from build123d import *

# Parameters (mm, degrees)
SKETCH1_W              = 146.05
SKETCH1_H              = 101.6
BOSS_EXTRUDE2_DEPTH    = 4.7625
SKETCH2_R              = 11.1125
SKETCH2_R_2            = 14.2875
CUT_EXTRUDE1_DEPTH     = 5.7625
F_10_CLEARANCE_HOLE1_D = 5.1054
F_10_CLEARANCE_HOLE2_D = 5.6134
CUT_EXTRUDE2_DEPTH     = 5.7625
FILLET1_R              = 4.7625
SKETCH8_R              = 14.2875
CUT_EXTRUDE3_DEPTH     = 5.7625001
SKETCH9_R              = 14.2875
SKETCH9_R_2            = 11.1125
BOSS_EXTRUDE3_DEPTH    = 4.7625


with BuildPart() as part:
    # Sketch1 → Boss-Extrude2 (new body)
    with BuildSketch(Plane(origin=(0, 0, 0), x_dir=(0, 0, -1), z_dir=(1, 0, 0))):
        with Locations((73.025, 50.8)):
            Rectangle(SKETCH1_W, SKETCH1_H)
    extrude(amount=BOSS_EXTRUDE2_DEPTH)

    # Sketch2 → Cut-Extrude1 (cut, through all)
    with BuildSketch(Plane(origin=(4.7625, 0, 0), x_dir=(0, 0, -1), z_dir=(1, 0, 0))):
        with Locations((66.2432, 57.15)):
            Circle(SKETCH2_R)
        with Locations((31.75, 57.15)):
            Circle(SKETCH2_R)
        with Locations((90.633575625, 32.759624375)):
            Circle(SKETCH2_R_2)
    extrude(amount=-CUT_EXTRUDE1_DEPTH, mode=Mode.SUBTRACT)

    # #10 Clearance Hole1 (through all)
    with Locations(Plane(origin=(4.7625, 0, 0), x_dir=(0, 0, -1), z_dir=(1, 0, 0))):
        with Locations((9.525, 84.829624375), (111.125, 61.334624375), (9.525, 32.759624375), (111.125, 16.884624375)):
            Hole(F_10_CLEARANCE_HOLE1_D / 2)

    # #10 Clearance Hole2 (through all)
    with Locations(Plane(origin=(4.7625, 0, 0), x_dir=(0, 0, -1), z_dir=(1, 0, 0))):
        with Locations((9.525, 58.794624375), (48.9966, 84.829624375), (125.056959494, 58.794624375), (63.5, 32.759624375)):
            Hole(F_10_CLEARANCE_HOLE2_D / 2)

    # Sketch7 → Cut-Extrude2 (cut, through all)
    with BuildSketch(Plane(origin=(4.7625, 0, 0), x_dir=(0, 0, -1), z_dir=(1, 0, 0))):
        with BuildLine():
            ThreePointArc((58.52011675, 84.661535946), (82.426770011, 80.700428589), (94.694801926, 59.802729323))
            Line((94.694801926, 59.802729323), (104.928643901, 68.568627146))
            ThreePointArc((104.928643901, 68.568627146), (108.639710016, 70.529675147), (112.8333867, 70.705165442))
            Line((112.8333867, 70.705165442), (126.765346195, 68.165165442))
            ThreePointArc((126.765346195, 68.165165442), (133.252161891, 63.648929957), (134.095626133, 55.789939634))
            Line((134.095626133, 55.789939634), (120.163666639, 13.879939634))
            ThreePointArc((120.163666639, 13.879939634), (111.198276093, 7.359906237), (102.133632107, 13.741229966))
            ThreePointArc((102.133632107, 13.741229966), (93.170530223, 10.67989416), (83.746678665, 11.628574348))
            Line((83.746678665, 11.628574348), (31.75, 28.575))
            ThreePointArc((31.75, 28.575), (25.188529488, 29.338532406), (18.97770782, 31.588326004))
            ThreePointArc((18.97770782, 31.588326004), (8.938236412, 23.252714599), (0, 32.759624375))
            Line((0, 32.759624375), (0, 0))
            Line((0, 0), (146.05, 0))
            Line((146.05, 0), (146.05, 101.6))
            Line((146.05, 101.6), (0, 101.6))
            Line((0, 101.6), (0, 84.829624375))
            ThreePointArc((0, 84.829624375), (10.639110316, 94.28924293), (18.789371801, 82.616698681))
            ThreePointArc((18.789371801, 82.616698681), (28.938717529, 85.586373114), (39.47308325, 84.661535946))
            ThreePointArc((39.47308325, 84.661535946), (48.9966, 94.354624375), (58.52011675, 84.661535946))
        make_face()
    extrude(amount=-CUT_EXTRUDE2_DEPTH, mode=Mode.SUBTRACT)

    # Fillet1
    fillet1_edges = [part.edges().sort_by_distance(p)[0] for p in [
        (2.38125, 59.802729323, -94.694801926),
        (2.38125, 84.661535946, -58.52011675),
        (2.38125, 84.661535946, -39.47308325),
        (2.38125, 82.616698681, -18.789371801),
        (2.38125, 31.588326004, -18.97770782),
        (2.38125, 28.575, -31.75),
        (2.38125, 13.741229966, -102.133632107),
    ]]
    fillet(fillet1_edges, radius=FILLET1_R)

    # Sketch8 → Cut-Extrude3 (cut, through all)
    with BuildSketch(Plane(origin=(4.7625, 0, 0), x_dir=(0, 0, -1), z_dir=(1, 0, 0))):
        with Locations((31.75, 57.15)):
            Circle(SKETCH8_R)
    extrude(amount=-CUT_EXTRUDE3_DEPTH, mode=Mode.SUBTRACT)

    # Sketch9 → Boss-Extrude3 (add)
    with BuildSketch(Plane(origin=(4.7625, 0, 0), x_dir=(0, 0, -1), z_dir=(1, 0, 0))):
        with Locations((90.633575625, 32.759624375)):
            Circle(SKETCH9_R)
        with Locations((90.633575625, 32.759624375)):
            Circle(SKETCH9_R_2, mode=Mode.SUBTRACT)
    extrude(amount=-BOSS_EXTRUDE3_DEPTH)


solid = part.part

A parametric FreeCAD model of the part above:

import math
import FreeCAD as App
import Part
import Sketcher
Q = App.Units.Quantity


def edges_at(feature, points):
    """Names of the edges that pass closest to the given points."""
    edges = feature.Shape.Edges
    near = lambda p: min(range(len(edges)), key=lambda i: edges[i].distToShape(Part.Vertex(*p))[0])
    return sorted({f"Edge{near(p) + 1}" for p in points})


def add_polygon(sketch, points):
    """Adds a closed chain of lines whose ends are joined by coincident constraints."""
    first, n = sketch.GeometryCount, len(points)
    for a, b in zip(points, points[1:] + points[:1]):
        sketch.addGeometry(Part.LineSegment(App.Vector(*a, 0), App.Vector(*b, 0)), False)
    for i in range(n):
        sketch.addConstraint(Sketcher.Constraint("Coincident", first + i, 2, first + (i + 1) % n, 1))

doc = App.newDocument("Part")
body = doc.addObject("PartDesign::Body", "Body")

# Sketch on YZ plane
sketch1 = body.newObject("Sketcher::SketchObject", "Sketch")
sketch1.AttachmentSupport = (doc.getObject("YZ_Plane"), [""])
sketch1.MapMode = "FlatFace"
add_polygon(sketch1, [(101.6, 0), (0, 0), (0, -146.05), (101.6, -146.05)])  # lines 0-3
sketch1.addConstraint([
    Sketcher.Constraint("Horizontal", 0),
    Sketcher.Constraint("Vertical", 1),
    Sketcher.Constraint("Horizontal", 2),
    Sketcher.Constraint("Vertical", 3),
    Sketcher.Constraint("Coincident", 0, 2, -1, 1),
    Sketcher.Constraint("DistanceX", 0, 2, 0, 1, Q("4 in")),
    Sketcher.Constraint("DistanceY", 1, 2, 1, 1, Q("5.75 in")),
])
pad1 = body.newObject("PartDesign::Pad", "Pad")
pad1.Profile = sketch1
pad1.Length = Q("0.1875 in")

# Sketch on YZ plane
sketch2 = body.newObject("Sketcher::SketchObject", "Sketch001")
sketch2.AttachmentSupport = (doc.getObject("YZ_Plane"), [""])
sketch2.MapMode = "FlatFace"
sketch2.AttachmentOffset = App.Placement(App.Vector(0, 0, 0.1875 * 25.4), App.Rotation())
sketch2.addGeometry([
    Part.Circle(App.Vector(57.15, -66.2432, 0), App.Vector(0, 0, 1), 11.1125),
    Part.Circle(App.Vector(57.15, -31.75, 0), App.Vector(0, 0, 1), 11.1125),
    Part.Circle(App.Vector(32.759624, -90.633576, 0), App.Vector(0, 0, 1), 14.2875),
], False)
sketch2.addConstraint([
    Sketcher.Constraint("Equal", 0, 1),
    Sketcher.Constraint("Vertical", 0, 3, 1, 3),
    Sketcher.Constraint("Diameter", 0, Q("0.875 in")),
    Sketcher.Constraint("Diameter", 2, Q("1.125 in")),
    Sketcher.Constraint("DistanceX", -1, 1, 0, 3, Q("2.25 in")),
    Sketcher.Constraint("DistanceY", 1, 3, -1, 1, Q("1.25 in")),
    Sketcher.Constraint("DistanceY", 0, 3, -1, 1, Q("2.608 in")),
    Sketcher.Constraint("DistanceX", -1, 1, 2, 3, 32.759624),
    Sketcher.Constraint("DistanceY", 2, 3, -1, 1, 90.633576),
])
pocket1 = body.newObject("PartDesign::Pocket", "Pocket")
pocket1.Profile = sketch2
pocket1.Type = "ThroughAll"

# Sketch on YZ plane
sketch3 = body.newObject("Sketcher::SketchObject", "Sketch002")
sketch3.AttachmentSupport = (doc.getObject("YZ_Plane"), [""])
sketch3.MapMode = "FlatFace"
sketch3.AttachmentOffset = App.Placement(App.Vector(0, 0, 0.1875 * 25.4), App.Rotation())
sketch3.addGeometry([
    Part.Circle(App.Vector(84.829624, -9.525, 0), App.Vector(0, 0, 1), 2.5527),
    Part.Circle(App.Vector(61.334624, -111.125, 0), App.Vector(0, 0, 1), 2.5527),
    Part.Circle(App.Vector(32.759624, -9.525, 0), App.Vector(0, 0, 1), 2.5527),
    Part.Circle(App.Vector(16.884624, -111.125, 0), App.Vector(0, 0, 1), 2.5527),
], False)
sketch3.addConstraint([
    Sketcher.Constraint("Equal", 0, 1),
    Sketcher.Constraint("Equal", 1, 2),
    Sketcher.Constraint("Equal", 2, 3),
    Sketcher.Constraint("Horizontal", 0, 3, 2, 3),
    Sketcher.Constraint("Horizontal", 1, 3, 3, 3),
    Sketcher.Constraint("Diameter", 0, Q("0.201 in")),
    Sketcher.Constraint("DistanceY", 1, 3, 0, 3, Q("4 in")),
    Sketcher.Constraint("DistanceX", 2, 3, 0, 3, Q("2.05 in")),
    Sketcher.Constraint("DistanceX", 3, 3, 1, 3, Q("1.75 in")),
    Sketcher.Constraint("DistanceY", 0, 3, -1, 1, Q("0.375 in")),
    Sketcher.Constraint("DistanceX", 1, 3, 0, 3, Q("0.925 in")),
    Sketcher.Constraint("DistanceX", -1, 1, 0, 3, 84.829624),
])
doc.recompute()
hole = body.newObject("PartDesign::Hole", "Hole")
hole.Profile = sketch3
hole.ThreadType = "None"
hole.Diameter = Q("0.201 in")
hole.DepthType = "ThroughAll"

# Sketch on YZ plane
sketch4 = body.newObject("Sketcher::SketchObject", "Sketch003")
sketch4.AttachmentSupport = (doc.getObject("YZ_Plane"), [""])
sketch4.MapMode = "FlatFace"
sketch4.AttachmentOffset = App.Placement(App.Vector(0, 0, 0.1875 * 25.4), App.Rotation())
sketch4.addGeometry([
    Part.Circle(App.Vector(58.794624, -9.525, 0), App.Vector(0, 0, 1), 2.8067),
    Part.Circle(App.Vector(84.829624, -48.9966, 0), App.Vector(0, 0, 1), 2.8067),
    Part.Circle(App.Vector(58.794624, -125.056959, 0), App.Vector(0, 0, 1), 2.8067),
    Part.Circle(App.Vector(32.759624, -63.5, 0), App.Vector(0, 0, 1), 2.8067),
], False)
sketch4.addConstraint([
    Sketcher.Constraint("Equal", 0, 1),
    Sketcher.Constraint("Equal", 1, 2),
    Sketcher.Constraint("Equal", 2, 3),
    Sketcher.Constraint("Vertical", 0, 3, 2, 3),
    Sketcher.Constraint("Diameter", 0, Q("0.221 in")),
    Sketcher.Constraint("DistanceY", 3, 3, -1, 1, Q("2.5 in")),
    Sketcher.Constraint("DistanceX", 3, 3, 1, 3, Q("2.05 in")),
    Sketcher.Constraint("DistanceY", 0, 3, -1, 1, Q("0.375 in")),
    Sketcher.Constraint("DistanceY", 1, 3, -1, 1, Q("1.929 in")),
    Sketcher.Constraint("DistanceX", 0, 3, 1, 3, Q("1.025 in")),
    Sketcher.Constraint("DistanceY", 2, 3, -1, 1, 125.056959),
    Sketcher.Constraint("DistanceX", -1, 1, 0, 3, 58.794624),
])
doc.recompute()
hole2 = body.newObject("PartDesign::Hole", "Hole001")
hole2.Profile = sketch4
hole2.ThreadType = "None"
hole2.Diameter = Q("0.221 in")
hole2.DepthType = "ThroughAll"

# Sketch on YZ plane
sketch5 = body.newObject("Sketcher::SketchObject", "Sketch004")
sketch5.AttachmentSupport = (doc.getObject("YZ_Plane"), [""])
sketch5.MapMode = "FlatFace"
sketch5.AttachmentOffset = App.Placement(App.Vector(0, 0, 0.1875 * 25.4), App.Rotation())
sketch5.addGeometry([
    Part.ArcOfCircle(Part.Circle(App.Vector(57.15, -66.2432, 0), App.Vector(0, 0, 1), 28.575), math.radians(-84.673338), math.radians(15.68058)),  # 0
    Part.LineSegment(App.Vector(59.802729, -94.694802, 0), App.Vector(68.568627, -104.928644, 0)),  # 1
    Part.ArcOfCircle(Part.Circle(App.Vector(61.334624, -111.125, 0), App.Vector(0, 0, 1), 9.525), math.radians(-10.332378), math.radians(40.582032)),  # 2
    Part.LineSegment(App.Vector(70.705165, -112.833387, 0), App.Vector(68.165165, -126.765346, 0)),  # 3
    Part.ArcOfCircle(Part.Circle(App.Vector(58.794624, -125.056959, 0), App.Vector(0, 0, 1), 9.525), math.radians(-108.388131), math.radians(-10.332378)),  # 4
    Part.LineSegment(App.Vector(55.78994, -134.095626, 0), App.Vector(13.87994, -120.163667, 0)),  # 5
    Part.ArcOfCircle(Part.Circle(App.Vector(16.884624, -111.125, 0), App.Vector(0, 0, 1), 9.525), math.radians(109.269696), math.radians(251.611869)),  # 6
    Part.ArcOfCircle(Part.Circle(App.Vector(32.759624, -90.633576, 0), App.Vector(0, 0, 1), 22.225), math.radians(161.948506), math.radians(211.160545)),  # 7
    Part.LineSegment(App.Vector(11.628574, -83.746679, 0), App.Vector(28.575, -31.75, 0)),  # 8
    Part.ArcOfCircle(Part.Circle(App.Vector(57.15, -31.75, 0), App.Vector(0, 0, 1), 28.575), math.radians(153.450273), math.radians(180)),  # 9
    Part.ArcOfCircle(Part.Circle(App.Vector(32.759624, -9.525, 0), App.Vector(0, 0, 1), 9.525), math.radians(90), math.radians(262.936404)),  # 10
    Part.LineSegment(App.Vector(32.759624, 0, 0), App.Vector(0, 0, 0)),  # 11
    Part.LineSegment(App.Vector(0, 0, 0), App.Vector(0, -146.05, 0)),  # 12
    Part.LineSegment(App.Vector(0, -146.05, 0), App.Vector(101.6, -146.05, 0)),  # 13
    Part.LineSegment(App.Vector(101.6, -146.05, 0), App.Vector(101.6, 0, 0)),  # 14
    Part.LineSegment(App.Vector(101.6, 0, 0), App.Vector(84.829624, 0, 0)),  # 15
    Part.ArcOfCircle(Part.Circle(App.Vector(84.829624, -9.525, 0), App.Vector(0, 0, 1), 9.525), math.radians(-103.434179), math.radians(90)),  # 16
    Part.ArcOfCircle(Part.Circle(App.Vector(57.15, -31.75, 0), App.Vector(0, 0, 1), 28.575), math.radians(-15.68058), math.radians(26.97266)),  # 17
    Part.ArcOfCircle(Part.Circle(App.Vector(84.829624, -48.9966, 0), App.Vector(0, 0, 1), 9.525), math.radians(-91.011156), math.radians(91.011156)),  # 18
], False)
sketch5.addConstraint([
    Sketcher.Constraint("Coincident", 0, 1, 1, 1),
    Sketcher.Constraint("Tangent", 1, 2, 2, 2),
    Sketcher.Constraint("Tangent", 2, 1, 3, 1),
    Sketcher.Constraint("Tangent", 3, 2, 4, 2),
    Sketcher.Constraint("Tangent", 4, 1, 5, 1),
    Sketcher.Constraint("Tangent", 5, 2, 6, 2),
    Sketcher.Constraint("Coincident", 6, 1, 7, 2),
    Sketcher.Constraint("Tangent", 7, 1, 8, 1),
    Sketcher.Constraint("Coincident", 8, 2, 9, 2),
    Sketcher.Constraint("Coincident", 9, 1, 10, 2),
    Sketcher.Constraint("Tangent", 10, 1, 11, 1),
    Sketcher.Constraint("Coincident", 11, 2, 12, 1),
    Sketcher.Constraint("Coincident", 12, 2, 13, 1),
    Sketcher.Constraint("Coincident", 13, 2, 14, 1),
    Sketcher.Constraint("Coincident", 14, 2, 15, 1),
    Sketcher.Constraint("Tangent", 15, 2, 16, 2),
    Sketcher.Constraint("Coincident", 16, 1, 17, 2),
    Sketcher.Constraint("Coincident", 17, 1, 18, 2),
    Sketcher.Constraint("Coincident", 18, 1, 0, 2),
    Sketcher.Constraint("Horizontal", 11),
    Sketcher.Constraint("Vertical", 12),
    Sketcher.Constraint("Horizontal", 13),
    Sketcher.Constraint("Vertical", 14),
    Sketcher.Constraint("Horizontal", 15),
    Sketcher.Constraint("Coincident", 11, 2, -1, 1),
    Sketcher.Constraint("Coincident", 17, 3, 9, 3),
    Sketcher.Constraint("Equal", 2, 4),
    Sketcher.Constraint("Equal", 4, 6),
    Sketcher.Constraint("Equal", 0, 9),
    Sketcher.Constraint("Equal", 6, 10),
    Sketcher.Constraint("Equal", 10, 16),
    Sketcher.Constraint("Equal", 9, 17),
    Sketcher.Constraint("Equal", 16, 18),
    Sketcher.Constraint("PointOnObject", 14, 2, -1),
    Sketcher.Constraint("Horizontal", 2, 3, 6, 3),
    Sketcher.Constraint("Horizontal", 17, 3, 8, 2),
    Sketcher.Constraint("Vertical", 0, 3, 9, 3),
    Sketcher.Constraint("Vertical", 7, 3, 10, 3),
    Sketcher.Constraint("Vertical", 16, 3, 18, 3),
    Sketcher.Constraint("Vertical", 17, 1, 18, 1),
    Sketcher.Constraint("DistanceX", 13, 1, 13, 2, Q("4 in")),
    Sketcher.Constraint("Radius", 0, Q("1.125 in")),
    Sketcher.Constraint("Radius", 2, Q("0.375 in")),
    Sketcher.Constraint("Radius", 7, Q("0.875 in")),
    Sketcher.Constraint("DistanceY", 6, 3, 10, 3, Q("4 in")),
    Sketcher.Constraint("DistanceY", 12, 2, 12, 1, Q("5.75 in")),
    Sketcher.Constraint("DistanceX", 4, 3, 2, 3, Q("0.1 in")),
    Sketcher.Constraint("DistanceX", -1, 1, 0, 3, Q("2.25 in")),
    Sketcher.Constraint("DistanceY", 9, 3, -1, 1, Q("1.25 in")),
    Sketcher.Constraint("DistanceX", 6, 3, 4, 3, Q("1.65 in")),
    Sketcher.Constraint("DistanceX", 10, 3, 16, 3, Q("2.05 in")),
    Sketcher.Constraint("DistanceY", 0, 3, -1, 1, Q("2.608 in")),
    Sketcher.Constraint("DistanceX", 6, 3, 7, 3, Q("0.625 in")),
    Sketcher.Constraint("DistanceY", 0, 1, -1, 1, 94.694802),
    Sketcher.Constraint("DistanceX", -1, 1, 16, 1, 82.616699),
    Sketcher.Constraint("DistanceX", 6, 1, 0, 1, 46.061499),
    Sketcher.Constraint("DistanceY", 4, 3, -1, 1, 125.056959),
])
pocket2 = body.newObject("PartDesign::Pocket", "Pocket001")
pocket2.Profile = sketch5
pocket2.Type = "ThroughAll"
doc.recompute()

fillet = body.newObject("PartDesign::Fillet", "Fillet")
fillet.Base = (pocket2, edges_at(pocket2, [
    (2.381, 59.803, -94.695),
    (2.381, 84.662, -58.52),
    (2.381, 84.662, -39.473),
    (2.381, 82.617, -18.789),
    (2.381, 31.588, -18.978),
    (2.381, 28.575, -31.75),
    (2.381, 13.741, -102.134),
]))
fillet.Radius = Q("0.1875 in")

# Sketch on YZ plane
sketch6 = body.newObject("Sketcher::SketchObject", "Sketch005")
sketch6.AttachmentSupport = (doc.getObject("YZ_Plane"), [""])
sketch6.MapMode = "FlatFace"
sketch6.AttachmentOffset = App.Placement(App.Vector(0, 0, 0.1875 * 25.4), App.Rotation())
sketch6.addGeometry(Part.Circle(App.Vector(57.15, -31.75, 0), App.Vector(0, 0, 1), 14.2875), False)
sketch6.addConstraint([
    Sketcher.Constraint("Diameter", 0, Q("1.125 in")),
    Sketcher.Constraint("DistanceX", -1, 1, 0, 3, Q("2.25 in")),
    Sketcher.Constraint("DistanceY", 0, 3, -1, 1, Q("1.25 in")),
])
pocket3 = body.newObject("PartDesign::Pocket", "Pocket002")
pocket3.Profile = sketch6
pocket3.Type = "ThroughAll"

# Sketch on YZ plane
sketch7 = body.newObject("Sketcher::SketchObject", "Sketch006")
sketch7.AttachmentSupport = (doc.getObject("YZ_Plane"), [""])
sketch7.MapMode = "FlatFace"
sketch7.AttachmentOffset = App.Placement(App.Vector(0, 0, 0.1875 * 25.4), App.Rotation())
sketch7.addGeometry([
    Part.Circle(App.Vector(32.759624, -90.633576, 0), App.Vector(0, 0, 1), 14.2875),
    Part.Circle(App.Vector(32.759624, -90.633576, 0), App.Vector(0, 0, 1), 11.1125),
], False)
sketch7.addConstraint([
    Sketcher.Constraint("Coincident", 1, 3, 0, 3),
    Sketcher.Constraint("Diameter", 0, Q("1.125 in")),
    Sketcher.Constraint("Diameter", 1, Q("0.875 in")),
    Sketcher.Constraint("DistanceX", -1, 1, 0, 3, 32.759624),
    Sketcher.Constraint("DistanceY", 0, 3, -1, 1, 90.633576),
])
pad2 = body.newObject("PartDesign::Pad", "Pad001")
pad2.Profile = sketch7
pad2.Length = Q("0.1875 in")
pad2.Reversed = True

doc.recompute()
